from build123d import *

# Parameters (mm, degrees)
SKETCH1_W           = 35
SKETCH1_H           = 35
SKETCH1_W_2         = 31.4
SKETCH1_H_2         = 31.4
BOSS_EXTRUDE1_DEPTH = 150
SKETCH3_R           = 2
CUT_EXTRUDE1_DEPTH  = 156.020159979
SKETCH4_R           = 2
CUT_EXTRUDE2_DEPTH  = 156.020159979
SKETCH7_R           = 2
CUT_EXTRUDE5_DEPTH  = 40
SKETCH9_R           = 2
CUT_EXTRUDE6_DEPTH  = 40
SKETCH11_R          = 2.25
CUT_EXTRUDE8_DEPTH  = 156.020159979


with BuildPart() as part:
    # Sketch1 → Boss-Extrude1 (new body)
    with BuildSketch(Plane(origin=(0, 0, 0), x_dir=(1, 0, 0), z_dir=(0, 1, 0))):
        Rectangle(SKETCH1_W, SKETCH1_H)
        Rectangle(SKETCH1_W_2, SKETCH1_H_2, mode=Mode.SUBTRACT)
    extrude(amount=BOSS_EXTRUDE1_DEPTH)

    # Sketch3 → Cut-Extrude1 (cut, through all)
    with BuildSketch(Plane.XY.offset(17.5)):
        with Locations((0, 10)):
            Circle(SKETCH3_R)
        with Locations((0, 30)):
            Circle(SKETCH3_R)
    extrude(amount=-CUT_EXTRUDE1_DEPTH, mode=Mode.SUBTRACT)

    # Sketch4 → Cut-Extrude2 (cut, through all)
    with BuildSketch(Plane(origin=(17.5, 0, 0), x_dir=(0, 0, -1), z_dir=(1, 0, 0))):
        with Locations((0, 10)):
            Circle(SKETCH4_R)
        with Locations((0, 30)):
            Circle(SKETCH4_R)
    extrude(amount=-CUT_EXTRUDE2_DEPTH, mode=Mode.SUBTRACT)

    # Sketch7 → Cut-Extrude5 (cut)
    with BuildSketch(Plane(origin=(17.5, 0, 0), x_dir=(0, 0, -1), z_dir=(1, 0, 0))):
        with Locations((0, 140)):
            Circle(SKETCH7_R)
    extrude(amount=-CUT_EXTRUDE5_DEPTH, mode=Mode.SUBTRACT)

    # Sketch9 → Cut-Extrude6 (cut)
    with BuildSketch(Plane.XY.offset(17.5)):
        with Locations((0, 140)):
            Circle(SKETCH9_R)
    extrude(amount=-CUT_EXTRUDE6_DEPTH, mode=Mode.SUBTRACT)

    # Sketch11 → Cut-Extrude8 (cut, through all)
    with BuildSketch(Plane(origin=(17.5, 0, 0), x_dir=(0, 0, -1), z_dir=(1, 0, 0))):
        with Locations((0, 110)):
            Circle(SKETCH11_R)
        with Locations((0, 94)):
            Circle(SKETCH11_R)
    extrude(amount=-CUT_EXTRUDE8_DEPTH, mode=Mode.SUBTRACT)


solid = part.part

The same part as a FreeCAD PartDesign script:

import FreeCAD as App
import Part
import Sketcher

V = App.Vector
Q = App.Units.Quantity

doc = App.newDocument("Part")
body = doc.addObject("PartDesign::Body", "Body")

sketch1 = body.newObject("Sketcher::SketchObject", "Sketch")
sketch1.AttachmentSupport = (doc.getObject("XZ_Plane"), [""])
sketch1.MapMode = "FlatFace"
sketch1.addGeometry([
    Part.LineSegment(V(-17.5, -17.5, 0), V(-17.5, 17.5, 0)),
    Part.LineSegment(V(-17.5, 17.5, 0), V(17.5, 17.5, 0)),
    Part.LineSegment(V(17.5, 17.5, 0), V(17.5, -17.5, 0)),
    Part.LineSegment(V(17.5, -17.5, 0), V(-17.5, -17.5, 0)),
    Part.LineSegment(V(15.7, 15.7, 0), V(-15.7, 15.7, 0)),
    Part.LineSegment(V(-15.7, 15.7, 0), V(-15.7, -15.7, 0)),
    Part.LineSegment(V(-15.7, -15.7, 0), V(15.7, -15.7, 0)),
    Part.LineSegment(V(15.7, -15.7, 0), V(15.7, 15.7, 0)),
], False)
sketch1.addConstraint([
    Sketcher.Constraint("Coincident", 0, 2, 1, 1),
    Sketcher.Constraint("Coincident", 1, 2, 2, 1),
    Sketcher.Constraint("Coincident", 2, 2, 3, 1),
    Sketcher.Constraint("Coincident", 3, 2, 0, 1),
    Sketcher.Constraint("Coincident", 4, 2, 5, 1),
    Sketcher.Constraint("Coincident", 5, 2, 6, 1),
    Sketcher.Constraint("Coincident", 6, 2, 7, 1),
    Sketcher.Constraint("Coincident", 7, 2, 4, 1),
    Sketcher.Constraint("Vertical", 0),
    Sketcher.Constraint("Horizontal", 1),
    Sketcher.Constraint("Vertical", 2),
    Sketcher.Constraint("Horizontal", 3),
    Sketcher.Constraint("Horizontal", 4),
    Sketcher.Constraint("Vertical", 5),
    Sketcher.Constraint("Horizontal", 6),
    Sketcher.Constraint("Vertical", 7),
    Sketcher.Constraint("Symmetric", 0, 2, 2, 2, -1, 1),
    Sketcher.Constraint("Symmetric", 4, 2, 6, 2, -1, 1),
    Sketcher.Constraint("Equal", 3, 0),
    Sketcher.Constraint("Equal", 6, 5),
    Sketcher.Constraint("DistanceX", 1, 1, 1, 2, Q("35 mm")),
    Sketcher.Constraint("DistanceX", 4, 2, 4, 1, Q("31.4 mm")),
])
pad1 = body.newObject("PartDesign::Pad", "Pad")
pad1.Profile = sketch1
pad1.Length = 150
pad1.Reversed = True

sketch2 = body.newObject("Sketcher::SketchObject", "Sketch001")
sketch2.AttachmentSupport = (doc.getObject("XY_Plane"), [""])
sketch2.MapMode = "FlatFace"
sketch2.AttachmentOffset = App.Placement(V(0, 0, 17.5), App.Rotation())
sketch2.addGeometry([
    Part.Circle(V(0, 10, 0), V(0, 0, 1), 2),
    Part.Circle(V(0, 30, 0), V(0, 0, 1), 2),
], False)
sketch2.addConstraint([
    Sketcher.Constraint("Equal", 0, 1),
    Sketcher.Constraint("PointOnObject", 0, 3, -2),
    Sketcher.Constraint("PointOnObject", 1, 3, -2),
    Sketcher.Constraint("Diameter", 0, Q("4 mm")),
    Sketcher.Constraint("DistanceY", -1, 1, 0, 3, Q("10 mm")),
    Sketcher.Constraint("DistanceY", -1, 1, 1, 3, Q("30 mm")),
])
pocket1 = body.newObject("PartDesign::Pocket", "Pocket")
pocket1.Profile = sketch2
pocket1.Type = "ThroughAll"

sketch3 = body.newObject("Sketcher::SketchObject", "Sketch002")
sketch3.AttachmentSupport = (doc.getObject("YZ_Plane"), [""])
sketch3.MapMode = "FlatFace"
sketch3.AttachmentOffset = App.Placement(V(0, 0, 17.5), App.Rotation())
sketch3.addGeometry([
    Part.Circle(V(10, 0, 0), V(0, 0, 1), 2),
    Part.Circle(V(30, 0, 0), V(0, 0, 1), 2),
], False)
sketch3.addConstraint([
    Sketcher.Constraint("Equal", 0, 1),
    Sketcher.Constraint("PointOnObject", 0, 3, -1),
    Sketcher.Constraint("PointOnObject", 1, 3, -1),
    Sketcher.Constraint("Diameter", 0, Q("4 mm")),
    Sketcher.Constraint("DistanceX", -1, 1, 0, 3, Q("10 mm")),
    Sketcher.Constraint("DistanceX", -1, 1, 1, 3, Q("30 mm")),
])
pocket2 = body.newObject("PartDesign::Pocket", "Pocket001")
pocket2.Profile = sketch3
pocket2.Type = "ThroughAll"

sketch4 = body.newObject("Sketcher::SketchObject", "Sketch003")
sketch4.AttachmentSupport = (doc.getObject("YZ_Plane"), [""])
sketch4.MapMode = "FlatFace"
sketch4.AttachmentOffset = App.Placement(V(0, 0, 17.5), App.Rotation())
sketch4.addGeometry(Part.Circle(V(140, 0, 0), V(0, 0, 1), 2), False)
sketch4.addConstraint([
    Sketcher.Constraint("PointOnObject", 0, 3, -1),
    Sketcher.Constraint("Diameter", 0, Q("4 mm")),
    Sketcher.Constraint("DistanceX", -1, 1, 0, 3, Q("140 mm")),
])
pocket3 = body.newObject("PartDesign::Pocket", "Pocket002")
pocket3.Profile = sketch4
pocket3.Length = 40

sketch5 = body.newObject("Sketcher::SketchObject", "Sketch004")
sketch5.AttachmentSupport = (doc.getObject("XY_Plane"), [""])
sketch5.MapMode = "FlatFace"
sketch5.AttachmentOffset = App.Placement(V(0, 0, 17.5), App.Rotation())
sketch5.addGeometry(Part.Circle(V(0, 140, 0), V(0, 0, 1), 2), False)
sketch5.addConstraint([
    Sketcher.Constraint("PointOnObject", 0, 3, -2),
    Sketcher.Constraint("Diameter", 0, Q("4 mm")),
    Sketcher.Constraint("DistanceY", -1, 1, 0, 3, Q("140 mm")),
])
pocket4 = body.newObject("PartDesign::Pocket", "Pocket003")
pocket4.Profile = sketch5
pocket4.Length = 40

sketch6 = body.newObject("Sketcher::SketchObject", "Sketch005")
sketch6.AttachmentSupport = (doc.getObject("YZ_Plane"), [""])
sketch6.MapMode = "FlatFace"
sketch6.AttachmentOffset = App.Placement(V(0, 0, 17.5), App.Rotation())
sketch6.addGeometry([
    Part.Circle(V(110, 0, 0), V(0, 0, 1), 2.25),
    Part.Circle(V(94, 0, 0), V(0, 0, 1), 2.25),
], False)
sketch6.addConstraint([
    Sketcher.Constraint("Equal", 0, 1),
    Sketcher.Constraint("PointOnObject", 0, 3, -1),
    Sketcher.Constraint("PointOnObject", 1, 3, -1),
    Sketcher.Constraint("Diameter", 0, Q("4.5 mm")),
    Sketcher.Constraint("DistanceX", -1, 1, 0, 3, Q("110 mm")),
    Sketcher.Constraint("DistanceX", -1, 1, 1, 3, Q("94 mm")),
])
pocket5 = body.newObject("PartDesign::Pocket", "Pocket004")
pocket5.Profile = sketch6
pocket5.Type = "ThroughAll"

doc.recompute()
